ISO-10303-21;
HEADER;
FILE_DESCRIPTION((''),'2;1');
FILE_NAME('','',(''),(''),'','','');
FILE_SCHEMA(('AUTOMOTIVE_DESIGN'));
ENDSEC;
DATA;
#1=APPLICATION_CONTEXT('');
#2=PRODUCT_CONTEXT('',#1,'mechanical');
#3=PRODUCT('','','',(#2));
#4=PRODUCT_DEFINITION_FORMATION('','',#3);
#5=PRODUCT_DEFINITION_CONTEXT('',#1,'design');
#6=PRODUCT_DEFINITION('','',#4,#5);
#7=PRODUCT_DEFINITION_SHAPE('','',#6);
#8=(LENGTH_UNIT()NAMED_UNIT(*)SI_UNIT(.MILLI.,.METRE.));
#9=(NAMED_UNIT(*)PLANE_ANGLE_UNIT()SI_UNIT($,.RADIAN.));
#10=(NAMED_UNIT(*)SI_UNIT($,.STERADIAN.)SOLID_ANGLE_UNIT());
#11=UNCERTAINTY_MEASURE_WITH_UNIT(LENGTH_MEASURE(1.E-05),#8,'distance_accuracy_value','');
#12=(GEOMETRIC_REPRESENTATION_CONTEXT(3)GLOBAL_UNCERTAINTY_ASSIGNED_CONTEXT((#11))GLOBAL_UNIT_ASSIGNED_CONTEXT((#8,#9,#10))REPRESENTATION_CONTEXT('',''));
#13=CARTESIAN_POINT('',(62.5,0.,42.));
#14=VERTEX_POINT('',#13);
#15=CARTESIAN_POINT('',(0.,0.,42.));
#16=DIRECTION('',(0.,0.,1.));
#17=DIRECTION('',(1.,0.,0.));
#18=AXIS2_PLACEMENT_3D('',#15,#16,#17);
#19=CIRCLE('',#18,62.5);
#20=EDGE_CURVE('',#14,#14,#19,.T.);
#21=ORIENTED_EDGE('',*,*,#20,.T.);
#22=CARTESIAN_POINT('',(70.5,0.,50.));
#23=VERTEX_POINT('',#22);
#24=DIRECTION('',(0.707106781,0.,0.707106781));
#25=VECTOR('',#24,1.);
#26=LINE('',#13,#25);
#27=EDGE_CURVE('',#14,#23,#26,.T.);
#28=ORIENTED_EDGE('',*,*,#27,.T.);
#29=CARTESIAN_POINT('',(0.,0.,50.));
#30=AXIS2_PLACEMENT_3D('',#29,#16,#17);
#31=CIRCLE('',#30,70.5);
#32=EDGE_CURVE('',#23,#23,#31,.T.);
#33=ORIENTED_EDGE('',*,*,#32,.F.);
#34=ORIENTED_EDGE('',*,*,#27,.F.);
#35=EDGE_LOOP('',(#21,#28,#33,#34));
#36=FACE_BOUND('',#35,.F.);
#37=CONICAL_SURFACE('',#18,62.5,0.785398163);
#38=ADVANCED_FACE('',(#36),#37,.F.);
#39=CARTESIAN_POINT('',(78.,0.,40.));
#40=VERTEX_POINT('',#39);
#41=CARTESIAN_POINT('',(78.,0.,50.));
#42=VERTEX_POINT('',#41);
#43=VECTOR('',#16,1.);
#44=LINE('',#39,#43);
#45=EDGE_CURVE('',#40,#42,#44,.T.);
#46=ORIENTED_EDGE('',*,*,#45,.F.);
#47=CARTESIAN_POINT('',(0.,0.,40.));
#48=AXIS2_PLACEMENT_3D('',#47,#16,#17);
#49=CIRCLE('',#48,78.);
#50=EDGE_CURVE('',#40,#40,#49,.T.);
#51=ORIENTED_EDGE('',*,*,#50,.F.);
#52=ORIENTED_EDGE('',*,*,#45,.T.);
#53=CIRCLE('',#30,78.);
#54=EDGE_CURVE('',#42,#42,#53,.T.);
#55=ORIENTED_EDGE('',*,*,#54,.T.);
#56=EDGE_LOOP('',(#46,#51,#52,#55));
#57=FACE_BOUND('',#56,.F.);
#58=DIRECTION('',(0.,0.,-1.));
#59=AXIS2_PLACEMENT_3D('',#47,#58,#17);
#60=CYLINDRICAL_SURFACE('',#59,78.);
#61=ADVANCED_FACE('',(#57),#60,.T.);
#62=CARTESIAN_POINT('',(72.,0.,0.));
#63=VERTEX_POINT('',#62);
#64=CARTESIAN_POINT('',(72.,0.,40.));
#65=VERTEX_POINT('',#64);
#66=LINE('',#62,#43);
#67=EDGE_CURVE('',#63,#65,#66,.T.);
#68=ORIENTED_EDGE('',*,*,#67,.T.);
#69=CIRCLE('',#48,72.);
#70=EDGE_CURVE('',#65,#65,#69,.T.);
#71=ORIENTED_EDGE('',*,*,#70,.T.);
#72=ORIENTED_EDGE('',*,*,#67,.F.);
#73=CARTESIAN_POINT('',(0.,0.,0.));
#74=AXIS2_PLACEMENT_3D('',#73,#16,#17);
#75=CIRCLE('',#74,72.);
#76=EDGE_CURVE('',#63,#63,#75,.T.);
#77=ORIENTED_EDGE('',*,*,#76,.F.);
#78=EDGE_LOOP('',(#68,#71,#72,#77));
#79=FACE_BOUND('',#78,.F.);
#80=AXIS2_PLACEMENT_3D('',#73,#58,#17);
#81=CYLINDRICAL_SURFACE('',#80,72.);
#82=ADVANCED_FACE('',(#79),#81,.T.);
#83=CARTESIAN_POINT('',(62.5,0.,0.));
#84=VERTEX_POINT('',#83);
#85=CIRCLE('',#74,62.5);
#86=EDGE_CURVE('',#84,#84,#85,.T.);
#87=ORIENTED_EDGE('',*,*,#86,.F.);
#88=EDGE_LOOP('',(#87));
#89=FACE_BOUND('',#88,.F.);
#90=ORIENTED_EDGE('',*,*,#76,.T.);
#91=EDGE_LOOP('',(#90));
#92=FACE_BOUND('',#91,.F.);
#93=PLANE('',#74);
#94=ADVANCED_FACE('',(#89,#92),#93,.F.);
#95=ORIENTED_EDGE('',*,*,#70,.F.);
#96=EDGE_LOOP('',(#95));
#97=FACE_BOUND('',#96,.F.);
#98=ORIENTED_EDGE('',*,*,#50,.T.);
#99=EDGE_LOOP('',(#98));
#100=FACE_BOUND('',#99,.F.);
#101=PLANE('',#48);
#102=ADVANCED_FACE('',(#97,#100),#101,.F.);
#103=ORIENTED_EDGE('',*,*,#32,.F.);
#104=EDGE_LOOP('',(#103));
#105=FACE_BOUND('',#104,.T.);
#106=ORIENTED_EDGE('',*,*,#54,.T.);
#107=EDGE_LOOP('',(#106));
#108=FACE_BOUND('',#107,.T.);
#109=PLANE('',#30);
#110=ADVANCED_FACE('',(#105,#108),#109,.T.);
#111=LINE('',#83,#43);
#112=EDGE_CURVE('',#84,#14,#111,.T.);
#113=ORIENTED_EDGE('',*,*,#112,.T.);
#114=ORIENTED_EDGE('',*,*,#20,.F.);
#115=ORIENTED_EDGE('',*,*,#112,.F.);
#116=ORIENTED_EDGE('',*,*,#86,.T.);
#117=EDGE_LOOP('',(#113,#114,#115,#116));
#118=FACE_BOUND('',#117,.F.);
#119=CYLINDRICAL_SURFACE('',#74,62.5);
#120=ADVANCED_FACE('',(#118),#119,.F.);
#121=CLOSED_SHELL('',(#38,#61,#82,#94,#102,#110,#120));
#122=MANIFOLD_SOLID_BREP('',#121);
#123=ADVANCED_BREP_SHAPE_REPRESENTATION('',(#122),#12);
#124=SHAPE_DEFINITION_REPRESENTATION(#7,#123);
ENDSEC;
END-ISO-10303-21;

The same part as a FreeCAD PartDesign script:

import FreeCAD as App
import Part
import Sketcher
Q = App.Units.Quantity

doc = App.newDocument("Part")
body = doc.addObject("PartDesign::Body", "Body")

sketch1 = doc.addObject("Sketcher::SketchObject", "Sketch")
body.addObject(sketch1)
sketch1.AttachmentSupport = (doc.XY_Plane, [""])
sketch1.MapMode = "FlatFace"
sketch1.addGeometry(Part.Circle(App.Vector(0, 0, 0), App.Vector(0, 0, 1), 72), False)
sketch1.addConstraint([
    Sketcher.Constraint("Coincident", 0, 3, -1, 1),
    Sketcher.Constraint("Diameter", 0, 144.0),
])
pad1 = doc.addObject("PartDesign::Pad", "Pad")
body.addObject(pad1)
pad1.Profile = sketch1
pad1.Length = 40

sketch2 = doc.addObject("Sketcher::SketchObject", "Sketch001")
body.addObject(sketch2)
sketch2.AttachmentSupport = (doc.XY_Plane, [""])
sketch2.MapMode = "FlatFace"
sketch2.AttachmentOffset = App.Placement(App.Vector(0, 0, 40), App.Rotation())
sketch2.addGeometry(Part.Circle(App.Vector(0, 0, 0), App.Vector(0, 0, 1), 78), False)
sketch2.addConstraint([
    Sketcher.Constraint("Coincident", 0, 3, -1, 1),
    Sketcher.Constraint("Diameter", 0, 156.0),
])
pad2 = doc.addObject("PartDesign::Pad", "Pad001")
body.addObject(pad2)
pad2.Profile = sketch2
pad2.Length = 10

sketch3 = doc.addObject("Sketcher::SketchObject", "Sketch002")
body.addObject(sketch3)
sketch3.AttachmentSupport = (doc.XZ_Plane, [""])
sketch3.MapMode = "FlatFace"
sketch3.addGeometry([
    Part.LineSegment(App.Vector(70, 50, 0), App.Vector(0, 50, 0)),
    Part.LineSegment(App.Vector(0, 50, 0), App.Vector(0, 0, 0)),
    Part.LineSegment(App.Vector(0, 0, 0), App.Vector(62, 0, 0)),
    Part.LineSegment(App.Vector(62, 0, 0), App.Vector(62, 42, 0)),
    Part.LineSegment(App.Vector(62, 42, 0), App.Vector(70, 50, 0)),
], False)
sketch3.addConstraint([
    Sketcher.Constraint("Coincident", 0, 2, 1, 1),
    Sketcher.Constraint("Coincident", 1, 2, 2, 1),
    Sketcher.Constraint("Coincident", 2, 2, 3, 1),
    Sketcher.Constraint("Coincident", 3, 2, 4, 1),
    Sketcher.Constraint("Coincident", 4, 2, 0, 1),
    Sketcher.Constraint("Horizontal", 0),
    Sketcher.Constraint("Vertical", 1),
    Sketcher.Constraint("Horizontal", 2),
    Sketcher.Constraint("Vertical", 3),
    Sketcher.Constraint("Coincident", 1, 2, -1, 1),
    Sketcher.Constraint("DistanceY", 1, 2, 1, 1, 50.0),
    Sketcher.Constraint("DistanceY", 3, 1, 3, 2, 42.0),
    Sketcher.Constraint("Angle", 4, Q("45 deg")),
    Sketcher.Constraint("DistanceX", 0, 2, 0, 1, 70.5),
])
groove = doc.addObject("PartDesign::Groove", "Groove")
body.addObject(groove)
groove.Profile = sketch3
groove.ReferenceAxis = (sketch3, ["V_Axis"])
groove.Angle = 360

doc.recompute()
